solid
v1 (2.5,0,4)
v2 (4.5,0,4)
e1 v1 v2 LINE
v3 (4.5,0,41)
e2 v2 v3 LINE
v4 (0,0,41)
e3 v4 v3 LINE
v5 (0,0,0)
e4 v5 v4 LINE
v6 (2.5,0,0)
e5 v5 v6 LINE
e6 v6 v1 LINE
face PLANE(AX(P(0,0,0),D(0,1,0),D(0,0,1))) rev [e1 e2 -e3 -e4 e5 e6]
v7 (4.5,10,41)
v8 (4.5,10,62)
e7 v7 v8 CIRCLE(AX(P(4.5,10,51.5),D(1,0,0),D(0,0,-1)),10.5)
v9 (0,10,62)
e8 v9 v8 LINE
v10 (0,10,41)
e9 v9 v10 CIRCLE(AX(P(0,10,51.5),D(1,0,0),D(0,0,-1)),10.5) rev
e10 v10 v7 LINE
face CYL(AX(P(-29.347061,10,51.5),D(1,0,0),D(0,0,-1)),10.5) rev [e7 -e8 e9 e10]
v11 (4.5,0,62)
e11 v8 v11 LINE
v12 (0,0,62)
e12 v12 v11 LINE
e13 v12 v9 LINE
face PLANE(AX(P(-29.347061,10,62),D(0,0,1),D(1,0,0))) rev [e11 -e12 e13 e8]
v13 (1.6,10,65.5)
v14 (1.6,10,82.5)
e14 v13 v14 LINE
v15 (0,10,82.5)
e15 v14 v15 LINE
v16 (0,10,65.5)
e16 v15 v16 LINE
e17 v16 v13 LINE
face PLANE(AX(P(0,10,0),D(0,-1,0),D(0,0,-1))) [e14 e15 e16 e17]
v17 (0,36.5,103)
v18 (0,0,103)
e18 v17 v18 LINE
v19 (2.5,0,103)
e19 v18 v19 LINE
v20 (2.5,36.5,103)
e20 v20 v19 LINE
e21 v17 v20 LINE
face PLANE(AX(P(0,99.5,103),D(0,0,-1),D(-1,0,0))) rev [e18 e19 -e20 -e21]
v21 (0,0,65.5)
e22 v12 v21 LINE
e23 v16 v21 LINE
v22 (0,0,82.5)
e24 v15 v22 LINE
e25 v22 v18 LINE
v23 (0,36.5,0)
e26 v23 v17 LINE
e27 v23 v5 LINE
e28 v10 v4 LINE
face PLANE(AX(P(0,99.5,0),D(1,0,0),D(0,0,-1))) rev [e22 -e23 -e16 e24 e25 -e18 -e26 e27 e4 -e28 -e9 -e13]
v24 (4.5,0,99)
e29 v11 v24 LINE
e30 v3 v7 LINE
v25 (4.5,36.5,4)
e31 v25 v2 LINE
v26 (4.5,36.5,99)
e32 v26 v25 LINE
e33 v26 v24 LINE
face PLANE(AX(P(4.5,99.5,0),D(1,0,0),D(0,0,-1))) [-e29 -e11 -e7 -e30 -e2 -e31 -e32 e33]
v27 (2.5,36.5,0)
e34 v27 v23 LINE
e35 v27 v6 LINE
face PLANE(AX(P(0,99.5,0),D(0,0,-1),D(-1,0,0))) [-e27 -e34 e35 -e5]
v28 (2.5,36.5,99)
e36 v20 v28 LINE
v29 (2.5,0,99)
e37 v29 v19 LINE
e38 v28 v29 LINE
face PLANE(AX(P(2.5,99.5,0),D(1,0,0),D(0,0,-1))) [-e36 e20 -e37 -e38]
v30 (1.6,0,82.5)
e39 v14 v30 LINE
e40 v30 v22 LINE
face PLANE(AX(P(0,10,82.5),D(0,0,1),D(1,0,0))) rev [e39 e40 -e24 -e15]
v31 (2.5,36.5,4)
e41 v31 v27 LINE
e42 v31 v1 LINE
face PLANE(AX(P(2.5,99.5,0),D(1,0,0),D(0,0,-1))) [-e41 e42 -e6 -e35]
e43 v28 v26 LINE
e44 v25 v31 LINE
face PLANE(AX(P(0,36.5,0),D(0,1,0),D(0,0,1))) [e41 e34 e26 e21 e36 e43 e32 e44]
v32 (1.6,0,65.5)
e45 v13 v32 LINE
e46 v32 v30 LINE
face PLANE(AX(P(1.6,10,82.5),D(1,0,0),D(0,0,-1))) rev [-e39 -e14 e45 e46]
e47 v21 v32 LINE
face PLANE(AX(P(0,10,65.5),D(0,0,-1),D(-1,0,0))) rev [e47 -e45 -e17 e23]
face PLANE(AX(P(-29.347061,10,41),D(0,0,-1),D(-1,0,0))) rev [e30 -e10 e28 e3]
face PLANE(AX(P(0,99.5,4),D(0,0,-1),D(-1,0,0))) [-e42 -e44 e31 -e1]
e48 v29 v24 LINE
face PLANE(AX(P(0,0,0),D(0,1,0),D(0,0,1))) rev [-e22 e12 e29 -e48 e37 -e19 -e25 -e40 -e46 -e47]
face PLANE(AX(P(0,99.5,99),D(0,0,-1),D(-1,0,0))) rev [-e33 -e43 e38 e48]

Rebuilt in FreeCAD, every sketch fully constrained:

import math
import FreeCAD as App
import Part
import Sketcher

doc = App.newDocument("Part")
params = doc.addObject("Spreadsheet::Sheet", "Params")
for row, (alias, value) in enumerate([
    ("sketch1_width", "2 mm"),
    ("sketch1_height", "103 mm"),
    ("sketch1_height2", "4 mm"),
    ("sketch1_width2", "2.5 mm"),
    ("pad1_length", "99.5 mm"),
    ("sketch2_radius", "10.5 mm"),
    ("sketch2_width", "10 mm"),
    ("pocket1_length", "4.5 mm"),
    ("sketch3_width", "2 mm"),
    ("sketch3_height", "4 mm"),
    ("sketch3_height2", "103 mm"),
    ("sketch3_width2", "2.5 mm"),
    ("pocket2_length", "58.5 mm"),
    ("sketch4_width", "2 mm"),
    ("sketch4_height", "4 mm"),
    ("sketch4_height2", "103 mm"),
    ("sketch4_width2", "2.5 mm"),
    ("pocket3_length", "4.5 mm"),
    ("sketch5_height", "17 mm"),
    ("sketch5_width", "1.6 mm"),
    ("pocket4_length", "10 mm"),
], start=1):
    params.set(f"A{row}", alias)
    params.set(f"B{row}", "=" + value)
    params.setAlias(f"B{row}", alias)

body = doc.addObject("PartDesign::Body", "Body")

sketch1 = body.newObject("Sketcher::SketchObject", "Sketch")
sketch1.AttachmentSupport = (doc.getObject("XZ_Plane"), [""])
sketch1.MapMode = "FlatFace"
sketch1.addGeometry([
    Part.LineSegment(App.Vector(0, 0, 0), App.Vector(0, 103, 0)),
    Part.LineSegment(App.Vector(0, 103, 0), App.Vector(2.5, 103, 0)),
    Part.LineSegment(App.Vector(2.5, 103, 0), App.Vector(2.5, 99, 0)),
    Part.LineSegment(App.Vector(2.5, 99, 0), App.Vector(4.5, 99, 0)),
    Part.LineSegment(App.Vector(4.5, 99, 0), App.Vector(4.5, 4, 0)),
    Part.LineSegment(App.Vector(4.5, 4, 0), App.Vector(2.5, 4, 0)),
    Part.LineSegment(App.Vector(2.5, 4, 0), App.Vector(2.5, 0, 0)),
    Part.LineSegment(App.Vector(2.5, 0, 0), App.Vector(0, 0, 0)),
], False)
sketch1.addConstraint([
    Sketcher.Constraint("Coincident", 0, 2, 1, 1),
    Sketcher.Constraint("Coincident", 1, 2, 2, 1),
    Sketcher.Constraint("Coincident", 2, 2, 3, 1),
    Sketcher.Constraint("Coincident", 3, 2, 4, 1),
    Sketcher.Constraint("Coincident", 4, 2, 5, 1),
    Sketcher.Constraint("Coincident", 5, 2, 6, 1),
    Sketcher.Constraint("Coincident", 6, 2, 7, 1),
    Sketcher.Constraint("Coincident", 7, 2, 0, 1),
    Sketcher.Constraint("Vertical", 0),
    Sketcher.Constraint("Horizontal", 1),
    Sketcher.Constraint("Vertical", 2),
    Sketcher.Constraint("Horizontal", 3),
    Sketcher.Constraint("Vertical", 4),
    Sketcher.Constraint("Horizontal", 5),
    Sketcher.Constraint("Vertical", 6),
    Sketcher.Constraint("Horizontal", 7),
    Sketcher.Constraint("Coincident", 7, 2, -1, 1),
    Sketcher.Constraint("Vertical", 2, 2, 5, 2),
    Sketcher.Constraint("Equal", 2, 6),
    Sketcher.Constraint("DistanceX", 3, 1, 3, 2, 2.0),
    Sketcher.Constraint("DistanceY", 0, 1, 0, 2, 103.0),
    Sketcher.Constraint("DistanceY", 2, 2, 2, 1, 4.0),
    Sketcher.Constraint("DistanceX", 1, 1, 1, 2, 2.5),
])
sketch1.setExpression("Constraints[19]", "Params.sketch1_width")
sketch1.setExpression("Constraints[20]", "Params.sketch1_height")
sketch1.setExpression("Constraints[21]", "Params.sketch1_height2")
sketch1.setExpression("Constraints[22]", "Params.sketch1_width2")
pad1 = body.newObject("PartDesign::Pad", "Pad")
pad1.Profile = sketch1
pad1.setExpression("Length", "Params.pad1_length")
pad1.Reversed = True

sketch2 = body.newObject("Sketcher::SketchObject", "Sketch001")
sketch2.AttachmentSupport = (doc.getObject("YZ_Plane"), [""])
sketch2.MapMode = "FlatFace"
sketch2.AttachmentOffset = App.Placement(App.Vector(0, 0, 4.5), App.Rotation())
sketch2.addGeometry([
    Part.LineSegment(App.Vector(10, 62, 0), App.Vector(0, 62, 0)),
    Part.LineSegment(App.Vector(0, 62, 0), App.Vector(0, 41, 0)),
    Part.LineSegment(App.Vector(0, 41, 0), App.Vector(10, 41, 0)),
    Part.ArcOfCircle(Part.Circle(App.Vector(10, 52, 0), App.Vector(0, 0, 1), 10), math.radians(-90), math.radians(90)),
], False)
sketch2.addConstraint([
    Sketcher.Constraint("Coincident", 0, 2, 1, 1),
    Sketcher.Constraint("Coincident", 1, 2, 2, 1),
    Sketcher.Constraint("Tangent", 2, 2, 3, 1),
    Sketcher.Constraint("Tangent", 3, 2, 0, 1),
    Sketcher.Constraint("Horizontal", 0),
    Sketcher.Constraint("Vertical", 1),
    Sketcher.Constraint("Horizontal", 2),
    Sketcher.Constraint("PointOnObject", 0, 2, -2),
    Sketcher.Constraint("Radius", 3, 10.5),
    Sketcher.Constraint("DistanceX", 0, 2, 0, 1, 10.0),
    Sketcher.Constraint("DistanceY", -1, 1, 0, 2, 62.0),
])
sketch2.setExpression("Constraints[8]", "Params.sketch2_radius")
sketch2.setExpression("Constraints[9]", "Params.sketch2_width")
pocket1 = body.newObject("PartDesign::Pocket", "Pocket")
pocket1.Profile = sketch2
pocket1.setExpression("Length", "Params.pocket1_length")

sketch3 = body.newObject("Sketcher::SketchObject", "Sketch002")
sketch3.AttachmentSupport = (doc.getObject("XZ_Plane"), [""])
sketch3.MapMode = "FlatFace"
sketch3.AttachmentOffset = App.Placement(App.Vector(0, 0, -99.5), App.Rotation())
sketch3.addGeometry([
    Part.LineSegment(App.Vector(2.5, 4, 0), App.Vector(2.5, 0, 0)),
    Part.LineSegment(App.Vector(2.5, 0, 0), App.Vector(0, 0, 0)),
    Part.LineSegment(App.Vector(0, 0, 0), App.Vector(0, 103, 0)),
    Part.LineSegment(App.Vector(0, 103, 0), App.Vector(2.5, 103, 0)),
    Part.LineSegment(App.Vector(2.5, 103, 0), App.Vector(2.5, 99, 0)),
    Part.LineSegment(App.Vector(2.5, 99, 0), App.Vector(4.5, 99, 0)),
    Part.LineSegment(App.Vector(4.5, 99, 0), App.Vector(4.5, 4, 0)),
    Part.LineSegment(App.Vector(4.5, 4, 0), App.Vector(2.5, 4, 0)),
], False)
sketch3.addConstraint([
    Sketcher.Constraint("Coincident", 0, 2, 1, 1),
    Sketcher.Constraint("Coincident", 1, 2, 2, 1),
    Sketcher.Constraint("Coincident", 2, 2, 3, 1),
    Sketcher.Constraint("Coincident", 3, 2, 4, 1),
    Sketcher.Constraint("Coincident", 4, 2, 5, 1),
    Sketcher.Constraint("Coincident", 5, 2, 6, 1),
    Sketcher.Constraint("Coincident", 6, 2, 7, 1),
    Sketcher.Constraint("Coincident", 7, 2, 0, 1),
    Sketcher.Constraint("Vertical", 0),
    Sketcher.Constraint("Horizontal", 1),
    Sketcher.Constraint("Vertical", 2),
    Sketcher.Constraint("Horizontal", 3),
    Sketcher.Constraint("Vertical", 4),
    Sketcher.Constraint("Horizontal", 5),
    Sketcher.Constraint("Vertical", 6),
    Sketcher.Constraint("Horizontal", 7),
    Sketcher.Constraint("Coincident", 1, 2, -1, 1),
    Sketcher.Constraint("Vertical", 0, 2, 3, 2),
    Sketcher.Constraint("Equal", 0, 4),
    Sketcher.Constraint("DistanceX", 5, 1, 5, 2, 2.0),
    Sketcher.Constraint("DistanceY", 0, 2, 0, 1, 4.0),
    Sketcher.Constraint("DistanceY", 2, 1, 2, 2, 103.0),
    Sketcher.Constraint("DistanceX", 1, 2, 1, 1, 2.5),
])
sketch3.setExpression("Constraints[19]", "Params.sketch3_width")
sketch3.setExpression("Constraints[20]", "Params.sketch3_height")
sketch3.setExpression("Constraints[21]", "Params.sketch3_height2")
sketch3.setExpression("Constraints[22]", "Params.sketch3_width2")
pocket2 = body.newObject("PartDesign::Pocket", "Pocket001")
pocket2.Profile = sketch3
pocket2.setExpression("Length", "Params.pocket2_length")
pocket2.Reversed = True

sketch4 = body.newObject("Sketcher::SketchObject", "Sketch003")
sketch4.AttachmentSupport = (doc.getObject("XZ_Plane"), [""])
sketch4.MapMode = "FlatFace"
sketch4.AttachmentOffset = App.Placement(App.Vector(0, 0, -41), App.Rotation())
sketch4.addGeometry([
    Part.LineSegment(App.Vector(4.5, 4, 0), App.Vector(2.5, 4, 0)),
    Part.LineSegment(App.Vector(2.5, 4, 0), App.Vector(2.5, 0, 0)),
    Part.LineSegment(App.Vector(2.5, 0, 0), App.Vector(0, 0, 0)),
    Part.LineSegment(App.Vector(0, 0, 0), App.Vector(0, 103, 0)),
    Part.LineSegment(App.Vector(0, 103, 0), App.Vector(2.5, 103, 0)),
    Part.LineSegment(App.Vector(2.5, 103, 0), App.Vector(2.5, 99, 0)),
    Part.LineSegment(App.Vector(2.5, 99, 0), App.Vector(4.5, 99, 0)),
    Part.LineSegment(App.Vector(4.5, 99, 0), App.Vector(4.5, 4, 0)),
], False)
sketch4.addConstraint([
    Sketcher.Constraint("Coincident", 0, 2, 1, 1),
    Sketcher.Constraint("Coincident", 1, 2, 2, 1),
    Sketcher.Constraint("Coincident", 2, 2, 3, 1),
    Sketcher.Constraint("Coincident", 3, 2, 4, 1),
    Sketcher.Constraint("Coincident", 4, 2, 5, 1),
    Sketcher.Constraint("Coincident", 5, 2, 6, 1),
    Sketcher.Constraint("Coincident", 6, 2, 7, 1),
    Sketcher.Constraint("Coincident", 7, 2, 0, 1),
    Sketcher.Constraint("Horizontal", 0),
    Sketcher.Constraint("Vertical", 1),
    Sketcher.Constraint("Horizontal", 2),
    Sketcher.Constraint("Vertical", 3),
    Sketcher.Constraint("Horizontal", 4),
    Sketcher.Constraint("Vertical", 5),
    Sketcher.Constraint("Horizontal", 6),
    Sketcher.Constraint("Vertical", 7),
    Sketcher.Constraint("Coincident", 2, 2, -1, 1),
    Sketcher.Constraint("Vertical", 1, 2, 4, 2),
    Sketcher.Constraint("Equal", 1, 5),
    Sketcher.Constraint("DistanceX", 0, 2, 0, 1, 2.0),
    Sketcher.Constraint("DistanceY", 1, 2, 1, 1, 4.0),
    Sketcher.Constraint("DistanceY", 3, 1, 3, 2, 103.0),
    Sketcher.Constraint("DistanceX", 2, 2, 2, 1, 2.5),
])
sketch4.setExpression("Constraints[19]", "Params.sketch4_width")
sketch4.setExpression("Constraints[20]", "Params.sketch4_height")
sketch4.setExpression("Constraints[21]", "Params.sketch4_height2")
sketch4.setExpression("Constraints[22]", "Params.sketch4_width2")
pocket3 = body.newObject("PartDesign::Pocket", "Pocket002")
pocket3.Profile = sketch4
pocket3.setExpression("Length", "Params.pocket3_length")
pocket3.Reversed = True

sketch5 = body.newObject("Sketcher::SketchObject", "Sketch004")
sketch5.AttachmentSupport = (doc.getObject("XZ_Plane"), [""])
sketch5.MapMode = "FlatFace"
sketch5.addGeometry([
    Part.LineSegment(App.Vector(0, 82.5, 0), App.Vector(0, 65.5, 0)),
    Part.LineSegment(App.Vector(0, 65.5, 0), App.Vector(1.6, 65.5, 0)),
    Part.LineSegment(App.Vector(1.6, 65.5, 0), App.Vector(1.6, 82.5, 0)),
    Part.LineSegment(App.Vector(1.6, 82.5, 0), App.Vector(0, 82.5, 0)),
], False)
sketch5.addConstraint([
    Sketcher.Constraint("Coincident", 0, 2, 1, 1),
    Sketcher.Constraint("Coincident", 1, 2, 2, 1),
    Sketcher.Constraint("Coincident", 2, 2, 3, 1),
    Sketcher.Constraint("Coincident", 3, 2, 0, 1),
    Sketcher.Constraint("Vertical", 0),
    Sketcher.Constraint("Horizontal", 1),
    Sketcher.Constraint("Vertical", 2),
    Sketcher.Constraint("Horizontal", 3),
    Sketcher.Constraint("PointOnObject", 0, 2, -2),
    Sketcher.Constraint("DistanceY", 0, 2, 0, 1, 17.0),
    Sketcher.Constraint("DistanceX", 1, 1, 1, 2, 1.6),
    Sketcher.Constraint("DistanceY", -1, 1, 0, 2, 65.5),
])
sketch5.setExpression("Constraints[9]", "Params.sketch5_height")
sketch5.setExpression("Constraints[10]", "Params.sketch5_width")
pocket4 = body.newObject("PartDesign::Pocket", "Pocket003")
pocket4.Profile = sketch5
pocket4.setExpression("Length", "Params.pocket4_length")

doc.recompute()
